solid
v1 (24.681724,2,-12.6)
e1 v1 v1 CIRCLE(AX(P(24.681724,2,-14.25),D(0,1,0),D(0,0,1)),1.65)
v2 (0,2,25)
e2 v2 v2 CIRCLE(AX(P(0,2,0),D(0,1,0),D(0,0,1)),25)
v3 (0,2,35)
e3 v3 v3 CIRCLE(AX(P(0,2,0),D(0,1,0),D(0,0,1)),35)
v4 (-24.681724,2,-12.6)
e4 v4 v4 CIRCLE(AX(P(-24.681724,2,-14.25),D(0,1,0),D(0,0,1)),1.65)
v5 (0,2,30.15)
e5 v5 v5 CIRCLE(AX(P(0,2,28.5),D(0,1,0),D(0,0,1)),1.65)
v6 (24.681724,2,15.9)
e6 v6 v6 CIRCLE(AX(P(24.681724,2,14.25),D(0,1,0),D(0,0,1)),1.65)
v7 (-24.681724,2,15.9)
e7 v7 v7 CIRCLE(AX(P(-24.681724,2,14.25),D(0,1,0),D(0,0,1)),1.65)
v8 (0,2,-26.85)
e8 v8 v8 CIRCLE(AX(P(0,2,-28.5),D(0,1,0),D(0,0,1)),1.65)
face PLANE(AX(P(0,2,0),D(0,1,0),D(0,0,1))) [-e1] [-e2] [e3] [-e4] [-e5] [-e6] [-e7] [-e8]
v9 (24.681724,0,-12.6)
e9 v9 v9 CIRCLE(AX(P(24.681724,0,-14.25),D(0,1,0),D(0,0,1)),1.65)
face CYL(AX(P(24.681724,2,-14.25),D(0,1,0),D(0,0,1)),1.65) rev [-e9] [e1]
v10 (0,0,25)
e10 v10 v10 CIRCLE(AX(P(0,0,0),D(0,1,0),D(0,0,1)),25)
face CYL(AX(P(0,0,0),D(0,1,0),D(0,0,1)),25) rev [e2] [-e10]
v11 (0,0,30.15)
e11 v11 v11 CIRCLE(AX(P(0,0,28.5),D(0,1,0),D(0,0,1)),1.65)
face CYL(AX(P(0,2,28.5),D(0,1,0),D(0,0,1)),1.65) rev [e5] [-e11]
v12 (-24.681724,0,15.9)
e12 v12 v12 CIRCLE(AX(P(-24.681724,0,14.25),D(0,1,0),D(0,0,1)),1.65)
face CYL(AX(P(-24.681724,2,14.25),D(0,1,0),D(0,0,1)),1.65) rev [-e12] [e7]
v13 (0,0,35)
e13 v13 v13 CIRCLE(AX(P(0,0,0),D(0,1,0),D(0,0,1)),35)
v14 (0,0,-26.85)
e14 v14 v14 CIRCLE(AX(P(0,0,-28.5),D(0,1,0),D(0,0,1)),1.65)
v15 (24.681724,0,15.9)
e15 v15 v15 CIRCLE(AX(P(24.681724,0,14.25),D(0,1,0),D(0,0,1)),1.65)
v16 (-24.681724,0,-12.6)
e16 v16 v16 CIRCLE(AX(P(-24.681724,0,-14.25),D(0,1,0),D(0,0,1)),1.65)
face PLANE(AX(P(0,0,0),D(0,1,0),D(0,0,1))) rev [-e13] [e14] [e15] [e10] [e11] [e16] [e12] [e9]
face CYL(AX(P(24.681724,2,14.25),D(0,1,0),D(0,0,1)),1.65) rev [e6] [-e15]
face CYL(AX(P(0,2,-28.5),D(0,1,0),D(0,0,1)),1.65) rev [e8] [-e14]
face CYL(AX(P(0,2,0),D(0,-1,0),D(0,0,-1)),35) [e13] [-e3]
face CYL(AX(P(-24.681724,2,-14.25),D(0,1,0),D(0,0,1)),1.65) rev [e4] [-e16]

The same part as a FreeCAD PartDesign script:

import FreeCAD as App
import Part
import Sketcher

V = App.Vector
Q = App.Units.Quantity

doc = App.newDocument("Part")
body = doc.addObject("PartDesign::Body", "Body")

# Sketch on XZ plane
sketch1 = body.newObject("Sketcher::SketchObject", "Sketch")
sketch1.AttachmentSupport = (doc.getObject("XZ_Plane"), [""])
sketch1.MapMode = "FlatFace"
sketch1.addGeometry(Part.Circle(V(0, 0, 0), V(0, 0, 1), 35), False)
sketch1.addConstraint([
    Sketcher.Constraint("Coincident", 0, 3, -1, 1),
    Sketcher.Constraint("Diameter", 0, Q("70 mm")),
])
pad1 = body.newObject("PartDesign::Pad", "Pad")
pad1.Profile = sketch1
pad1.Length = 2
pad1.Reversed = True

# Sketch on XZ plane
sketch2 = body.newObject("Sketcher::SketchObject", "Sketch001")
sketch2.AttachmentSupport = (doc.getObject("XZ_Plane"), [""])
sketch2.MapMode = "FlatFace"
sketch2.AttachmentOffset = App.Placement(V(0, 0, -2), App.Rotation())
sketch2.addGeometry(Part.Circle(V(0, 0, 0), V(0, 0, 1), 25), False)
sketch2.addConstraint([
    Sketcher.Constraint("Coincident", 0, 3, -1, 1),
    Sketcher.Constraint("Diameter", 0, Q("50 mm")),
])
pocket1 = body.newObject("PartDesign::Pocket", "Pocket")
pocket1.Profile = sketch2
pocket1.Length = 2
pocket1.Reversed = True

# Sketch on XZ plane
sketch3 = body.newObject("Sketcher::SketchObject", "Sketch002")
sketch3.AttachmentSupport = (doc.getObject("XZ_Plane"), [""])
sketch3.MapMode = "FlatFace"
sketch3.AttachmentOffset = App.Placement(V(0, 0, -2), App.Rotation())
sketch3.addGeometry(Part.Circle(V(0, -28.5, 0), V(0, 0, 1), 1.65), False)
sketch3.addConstraint([
    Sketcher.Constraint("PointOnObject", 0, 3, -2),
    Sketcher.Constraint("Diameter", 0, Q("3.3 mm")),
    Sketcher.Constraint("DistanceY", 0, 3, -1, 1, Q("28.5 mm")),
])
doc.recompute()
hole = body.newObject("PartDesign::Hole", "Hole")
hole.Profile = sketch3
hole.ThreadType = "None"
hole.Diameter = 3.3
hole.DepthType = "ThroughAll"
hole.Reversed = True
doc.recompute()

polarpattern = body.newObject("PartDesign::PolarPattern", "PolarPattern")
polarpattern.Originals = [hole]
polarpattern.Axis = (doc.getObject("Y_Axis"), [""])
polarpattern.Angle = 360
polarpattern.Occurrences = 6
body.Tip = polarpattern

doc.recompute()
